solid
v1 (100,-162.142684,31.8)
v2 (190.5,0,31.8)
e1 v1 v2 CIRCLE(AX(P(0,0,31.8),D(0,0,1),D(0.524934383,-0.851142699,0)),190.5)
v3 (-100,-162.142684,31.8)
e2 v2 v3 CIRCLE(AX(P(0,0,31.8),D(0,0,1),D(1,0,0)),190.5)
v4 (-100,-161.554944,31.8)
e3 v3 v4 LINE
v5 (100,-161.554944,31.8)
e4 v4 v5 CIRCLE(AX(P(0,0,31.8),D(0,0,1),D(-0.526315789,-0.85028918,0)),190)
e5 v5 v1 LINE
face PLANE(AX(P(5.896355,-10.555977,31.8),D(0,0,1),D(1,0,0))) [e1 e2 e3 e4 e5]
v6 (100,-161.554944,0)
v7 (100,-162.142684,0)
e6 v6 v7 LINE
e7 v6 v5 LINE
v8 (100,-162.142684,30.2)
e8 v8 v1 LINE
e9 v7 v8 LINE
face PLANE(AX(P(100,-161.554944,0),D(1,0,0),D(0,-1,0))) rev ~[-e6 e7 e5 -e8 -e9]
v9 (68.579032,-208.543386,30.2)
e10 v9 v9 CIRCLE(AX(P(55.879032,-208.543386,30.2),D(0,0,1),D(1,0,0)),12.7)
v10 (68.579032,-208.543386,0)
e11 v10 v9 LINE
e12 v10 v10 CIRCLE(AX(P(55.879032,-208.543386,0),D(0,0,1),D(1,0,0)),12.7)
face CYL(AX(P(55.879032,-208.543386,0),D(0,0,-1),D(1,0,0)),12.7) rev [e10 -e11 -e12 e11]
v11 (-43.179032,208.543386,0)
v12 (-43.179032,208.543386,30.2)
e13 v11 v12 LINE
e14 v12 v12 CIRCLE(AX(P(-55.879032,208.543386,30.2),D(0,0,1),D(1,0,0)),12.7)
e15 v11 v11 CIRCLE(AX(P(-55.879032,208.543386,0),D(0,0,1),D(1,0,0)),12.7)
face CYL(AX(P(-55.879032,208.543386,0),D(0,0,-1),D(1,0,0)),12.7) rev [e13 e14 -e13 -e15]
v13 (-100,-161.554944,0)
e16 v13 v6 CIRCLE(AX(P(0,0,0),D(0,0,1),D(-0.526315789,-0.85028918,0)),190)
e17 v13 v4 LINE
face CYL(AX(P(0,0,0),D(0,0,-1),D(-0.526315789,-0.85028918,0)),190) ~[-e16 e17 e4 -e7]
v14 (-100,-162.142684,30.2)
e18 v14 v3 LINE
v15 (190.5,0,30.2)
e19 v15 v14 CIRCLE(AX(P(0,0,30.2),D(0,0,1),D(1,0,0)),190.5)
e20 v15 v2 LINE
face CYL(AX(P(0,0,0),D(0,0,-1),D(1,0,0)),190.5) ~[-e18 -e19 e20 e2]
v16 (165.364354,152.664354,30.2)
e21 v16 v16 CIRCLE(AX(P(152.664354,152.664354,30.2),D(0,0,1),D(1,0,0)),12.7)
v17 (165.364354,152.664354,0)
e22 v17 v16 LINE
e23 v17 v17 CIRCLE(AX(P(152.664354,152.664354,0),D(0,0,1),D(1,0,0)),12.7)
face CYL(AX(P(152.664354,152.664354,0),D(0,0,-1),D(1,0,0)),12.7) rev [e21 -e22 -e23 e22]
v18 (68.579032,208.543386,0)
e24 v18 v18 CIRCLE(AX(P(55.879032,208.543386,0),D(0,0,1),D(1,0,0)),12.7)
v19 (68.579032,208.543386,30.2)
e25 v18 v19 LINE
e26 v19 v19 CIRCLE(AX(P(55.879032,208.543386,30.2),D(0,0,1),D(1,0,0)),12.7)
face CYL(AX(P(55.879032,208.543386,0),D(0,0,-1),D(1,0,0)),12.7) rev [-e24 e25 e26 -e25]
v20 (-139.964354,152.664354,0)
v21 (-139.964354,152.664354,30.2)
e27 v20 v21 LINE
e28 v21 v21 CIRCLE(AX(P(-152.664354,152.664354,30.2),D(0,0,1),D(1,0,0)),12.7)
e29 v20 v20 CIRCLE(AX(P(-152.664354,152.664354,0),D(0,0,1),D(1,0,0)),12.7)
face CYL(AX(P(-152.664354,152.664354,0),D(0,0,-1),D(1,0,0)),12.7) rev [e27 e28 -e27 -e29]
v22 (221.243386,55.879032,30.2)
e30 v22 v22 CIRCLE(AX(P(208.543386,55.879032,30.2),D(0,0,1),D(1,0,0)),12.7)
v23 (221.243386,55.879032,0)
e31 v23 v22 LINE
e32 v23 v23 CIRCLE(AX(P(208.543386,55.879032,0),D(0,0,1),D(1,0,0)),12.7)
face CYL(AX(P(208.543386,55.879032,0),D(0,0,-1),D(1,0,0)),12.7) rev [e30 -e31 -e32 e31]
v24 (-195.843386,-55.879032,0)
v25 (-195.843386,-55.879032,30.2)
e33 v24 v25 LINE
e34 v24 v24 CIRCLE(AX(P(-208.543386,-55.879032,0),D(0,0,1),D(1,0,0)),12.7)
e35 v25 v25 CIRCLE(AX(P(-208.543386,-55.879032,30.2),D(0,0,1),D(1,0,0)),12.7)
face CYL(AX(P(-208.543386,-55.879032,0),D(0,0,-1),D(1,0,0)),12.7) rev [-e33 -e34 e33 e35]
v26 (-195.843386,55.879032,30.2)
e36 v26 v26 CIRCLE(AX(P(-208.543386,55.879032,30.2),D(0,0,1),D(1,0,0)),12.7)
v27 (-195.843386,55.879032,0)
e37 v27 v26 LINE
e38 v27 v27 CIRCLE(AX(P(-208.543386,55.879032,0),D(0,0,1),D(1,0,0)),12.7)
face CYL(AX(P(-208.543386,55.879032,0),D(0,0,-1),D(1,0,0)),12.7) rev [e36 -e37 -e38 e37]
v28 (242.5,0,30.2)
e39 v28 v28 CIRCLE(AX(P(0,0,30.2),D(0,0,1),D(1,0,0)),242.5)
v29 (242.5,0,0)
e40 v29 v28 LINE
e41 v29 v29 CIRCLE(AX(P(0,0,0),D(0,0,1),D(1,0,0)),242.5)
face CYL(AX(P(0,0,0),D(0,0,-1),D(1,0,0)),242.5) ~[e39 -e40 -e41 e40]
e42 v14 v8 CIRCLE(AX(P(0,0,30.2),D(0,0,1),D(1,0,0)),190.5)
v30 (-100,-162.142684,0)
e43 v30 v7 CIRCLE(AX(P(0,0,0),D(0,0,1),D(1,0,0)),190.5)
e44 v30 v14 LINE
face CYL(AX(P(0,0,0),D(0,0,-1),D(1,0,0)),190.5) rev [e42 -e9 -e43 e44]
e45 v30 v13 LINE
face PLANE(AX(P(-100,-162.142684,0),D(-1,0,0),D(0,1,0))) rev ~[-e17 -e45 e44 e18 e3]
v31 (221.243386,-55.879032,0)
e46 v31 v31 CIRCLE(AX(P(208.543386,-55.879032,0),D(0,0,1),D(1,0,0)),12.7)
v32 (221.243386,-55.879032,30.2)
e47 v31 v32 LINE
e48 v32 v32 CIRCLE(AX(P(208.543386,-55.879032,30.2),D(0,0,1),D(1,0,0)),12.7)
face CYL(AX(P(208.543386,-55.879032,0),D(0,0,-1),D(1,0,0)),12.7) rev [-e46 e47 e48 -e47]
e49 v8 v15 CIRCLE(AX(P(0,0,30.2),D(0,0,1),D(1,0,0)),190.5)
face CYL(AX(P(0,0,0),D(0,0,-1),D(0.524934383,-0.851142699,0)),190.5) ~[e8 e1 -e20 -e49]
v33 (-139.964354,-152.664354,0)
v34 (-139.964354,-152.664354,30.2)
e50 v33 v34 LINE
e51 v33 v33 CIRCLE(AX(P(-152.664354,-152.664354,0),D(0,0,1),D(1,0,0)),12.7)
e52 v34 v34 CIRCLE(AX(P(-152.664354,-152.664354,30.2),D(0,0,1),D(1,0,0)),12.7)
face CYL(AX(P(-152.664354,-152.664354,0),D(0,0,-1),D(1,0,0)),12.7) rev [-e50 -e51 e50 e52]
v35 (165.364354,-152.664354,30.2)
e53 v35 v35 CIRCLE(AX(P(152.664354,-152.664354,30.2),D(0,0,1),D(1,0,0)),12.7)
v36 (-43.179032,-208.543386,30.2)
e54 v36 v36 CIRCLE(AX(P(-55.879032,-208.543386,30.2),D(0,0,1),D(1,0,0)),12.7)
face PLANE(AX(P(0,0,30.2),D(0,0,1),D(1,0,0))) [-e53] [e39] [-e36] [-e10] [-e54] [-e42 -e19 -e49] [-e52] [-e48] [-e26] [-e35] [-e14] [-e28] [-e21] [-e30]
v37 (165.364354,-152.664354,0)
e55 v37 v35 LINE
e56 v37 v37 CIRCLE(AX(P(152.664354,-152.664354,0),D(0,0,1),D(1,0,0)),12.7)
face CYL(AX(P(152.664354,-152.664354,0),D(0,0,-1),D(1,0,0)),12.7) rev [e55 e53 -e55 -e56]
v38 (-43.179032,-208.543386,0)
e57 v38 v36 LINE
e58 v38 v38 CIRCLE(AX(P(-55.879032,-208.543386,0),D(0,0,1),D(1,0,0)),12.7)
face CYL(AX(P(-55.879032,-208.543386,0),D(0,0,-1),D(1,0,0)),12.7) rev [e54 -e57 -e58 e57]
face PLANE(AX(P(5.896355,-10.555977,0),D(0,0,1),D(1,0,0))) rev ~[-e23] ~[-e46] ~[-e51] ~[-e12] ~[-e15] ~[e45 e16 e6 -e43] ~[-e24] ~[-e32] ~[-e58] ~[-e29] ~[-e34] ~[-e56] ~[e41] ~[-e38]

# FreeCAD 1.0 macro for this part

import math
import FreeCAD as App
import Part
import Sketcher

V = App.Vector

doc = App.newDocument("Part")
body = doc.addObject("PartDesign::Body", "Body")

sketch1 = body.newObject("Sketcher::SketchObject", "Sketch")
sketch1.AttachmentSupport = (doc.getObject("XY_Plane"), [""])
sketch1.MapMode = "FlatFace"
sketch1.addGeometry(Part.Circle(V(0, 0, 0), V(0, 0, 1), 242), False)
sketch1.addGeometry(Part.Circle(V(-153, -153, 0), V(0, 0, 1), 13), False)
sketch1.addGeometry(Part.Circle(V(-56, -209, 0), V(0, 0, 1), 13), False)
sketch1.addGeometry(Part.Circle(V(-209, -56, 0), V(0, 0, 1), 13), False)
sketch1.addGeometry(Part.Circle(V(56, -209, 0), V(0, 0, 1), 13), False)
sketch1.addGeometry(Part.Circle(V(153, -153, 0), V(0, 0, 1), 13), False)
sketch1.addGeometry(Part.Circle(V(209, -56, 0), V(0, 0, 1), 13), False)
sketch1.addGeometry(Part.Circle(V(-209, 56, 0), V(0, 0, 1), 13), False)
sketch1.addGeometry(Part.Circle(V(-153, 153, 0), V(0, 0, 1), 13), False)
sketch1.addGeometry(Part.Circle(V(-56, 209, 0), V(0, 0, 1), 13), False)
sketch1.addGeometry(Part.Circle(V(0, 0, 0), V(0, 0, 1), 190), False)
sketch1.addGeometry(Part.Circle(V(209, 56, 0), V(0, 0, 1), 13), False)
sketch1.addGeometry(Part.Circle(V(56, 209, 0), V(0, 0, 1), 13), False)
sketch1.addGeometry(Part.Circle(V(153, 153, 0), V(0, 0, 1), 13), False)
sketch1.addConstraint(Sketcher.Constraint("Coincident", 0, 3, -1, 1))
sketch1.addConstraint(Sketcher.Constraint("Coincident", 10, 3, -1, 1))
sketch1.addConstraint(Sketcher.Constraint("Equal", 1, 2))
sketch1.addConstraint(Sketcher.Constraint("Equal", 2, 3))
sketch1.addConstraint(Sketcher.Constraint("Equal", 3, 4))
sketch1.addConstraint(Sketcher.Constraint("Equal", 4, 5))
sketch1.addConstraint(Sketcher.Constraint("Equal", 5, 6))
sketch1.addConstraint(Sketcher.Constraint("Equal", 6, 7))
sketch1.addConstraint(Sketcher.Constraint("Equal", 7, 8))
sketch1.addConstraint(Sketcher.Constraint("Equal", 8, 9))
sketch1.addConstraint(Sketcher.Constraint("Equal", 9, 11))
sketch1.addConstraint(Sketcher.Constraint("Equal", 11, 12))
sketch1.addConstraint(Sketcher.Constraint("Equal", 12, 13))
sketch1.addConstraint(Sketcher.Constraint("Symmetric", 6, 3, 7, 3, -1, 1))
sketch1.addConstraint(Sketcher.Constraint("Symmetric", 5, 3, 8, 3, -1, 1))
sketch1.addConstraint(Sketcher.Constraint("Symmetric", 4, 3, 9, 3, -1, 1))
sketch1.addConstraint(Sketcher.Constraint("Symmetric", 3, 3, 11, 3, -1, 1))
sketch1.addConstraint(Sketcher.Constraint("Symmetric", 2, 3, 12, 3, -1, 1))
sketch1.addConstraint(Sketcher.Constraint("Symmetric", 1, 3, 13, 3, -1, 1))
sketch1.addConstraint(Sketcher.Constraint("Symmetric", 2, 3, 4, 3, -2))
sketch1.addConstraint(Sketcher.Constraint("Symmetric", 1, 3, 5, 3, -2))
sketch1.addConstraint(Sketcher.Constraint("Symmetric", 3, 3, 6, 3, -2))
sketch1.addConstraint(Sketcher.Constraint("Diameter", 0, 485.0))
sketch1.addConstraint(Sketcher.Constraint("Diameter", 10, 381.0))
sketch1.addConstraint(Sketcher.Constraint("Diameter", 1, 25.4))
sketch1.addConstraint(Sketcher.Constraint("DistanceX", 2, 3, -1, 1, 55.879032))
sketch1.addConstraint(Sketcher.Constraint("DistanceY", 3, 3, -1, 1, 55.879032))
sketch1.addConstraint(Sketcher.Constraint("DistanceY", 2, 3, 1, 3, 55.879032))
sketch1.addConstraint(Sketcher.Constraint("DistanceX", 3, 3, 1, 3, 55.879032))
sketch1.addConstraint(Sketcher.Constraint("DistanceX", 1, 3, 5, 3, 305.328708))
sketch1.addConstraint(Sketcher.Constraint("DistanceY", 1, 3, 8, 3, 305.328708))
pad1 = body.newObject("PartDesign::Pad", "Pad")
pad1.Profile = sketch1
pad1.Length = 30.2

sketch2 = body.newObject("Sketcher::SketchObject", "Sketch001")
sketch2.AttachmentSupport = (doc.getObject("XY_Plane"), [""])
sketch2.MapMode = "FlatFace"
sketch2.addGeometry(Part.LineSegment(V(-100, -162.1, 0), V(-100, -161.6, 0)), False)
sketch2.addGeometry(Part.ArcOfCircle(Part.Circle(V(0, 0, 0), V(0, 0, 1), 190), math.radians(-122), math.radians(-58)), False)
sketch2.addGeometry(Part.LineSegment(V(100, -161.6, 0), V(100, -162.1, 0)), False)
sketch2.addGeometry(Part.ArcOfCircle(Part.Circle(V(0, 0, 0), V(0, 0, 1), 190.5), math.radians(-58), math.radians(0)), False)
sketch2.addGeometry(Part.ArcOfCircle(Part.Circle(V(0, 0, 0), V(0, 0, 1), 190.5), math.radians(0), math.radians(238)), False)
sketch2.addConstraint(Sketcher.Constraint("Coincident", 0, 2, 1, 1))
sketch2.addConstraint(Sketcher.Constraint("Coincident", 1, 2, 2, 1))
sketch2.addConstraint(Sketcher.Constraint("Coincident", 2, 2, 3, 1))
sketch2.addConstraint(Sketcher.Constraint("Tangent", 3, 2, 4, 1))
sketch2.addConstraint(Sketcher.Constraint("Coincident", 4, 2, 0, 1))
sketch2.addConstraint(Sketcher.Constraint("Vertical", 0))
sketch2.addConstraint(Sketcher.Constraint("Vertical", 2))
sketch2.addConstraint(Sketcher.Constraint("Coincident", 1, 3, -1, 1))
sketch2.addConstraint(Sketcher.Constraint("Coincident", 3, 3, -1, 1))
sketch2.addConstraint(Sketcher.Constraint("Equal", 3, 4))
sketch2.addConstraint(Sketcher.Constraint("PointOnObject", 3, 2, -1))
sketch2.addConstraint(Sketcher.Constraint("Horizontal", 0, 2, 1, 2))
sketch2.addConstraint(Sketcher.Constraint("Radius", 1, 190.0))
sketch2.addConstraint(Sketcher.Constraint("Radius", 3, 190.5))
sketch2.addConstraint(Sketcher.Constraint("DistanceX", 0, 2, -1, 1, 100.0))
pad2 = body.newObject("PartDesign::Pad", "Pad001")
pad2.Profile = sketch2
pad2.Length = 31.8

doc.recompute()
